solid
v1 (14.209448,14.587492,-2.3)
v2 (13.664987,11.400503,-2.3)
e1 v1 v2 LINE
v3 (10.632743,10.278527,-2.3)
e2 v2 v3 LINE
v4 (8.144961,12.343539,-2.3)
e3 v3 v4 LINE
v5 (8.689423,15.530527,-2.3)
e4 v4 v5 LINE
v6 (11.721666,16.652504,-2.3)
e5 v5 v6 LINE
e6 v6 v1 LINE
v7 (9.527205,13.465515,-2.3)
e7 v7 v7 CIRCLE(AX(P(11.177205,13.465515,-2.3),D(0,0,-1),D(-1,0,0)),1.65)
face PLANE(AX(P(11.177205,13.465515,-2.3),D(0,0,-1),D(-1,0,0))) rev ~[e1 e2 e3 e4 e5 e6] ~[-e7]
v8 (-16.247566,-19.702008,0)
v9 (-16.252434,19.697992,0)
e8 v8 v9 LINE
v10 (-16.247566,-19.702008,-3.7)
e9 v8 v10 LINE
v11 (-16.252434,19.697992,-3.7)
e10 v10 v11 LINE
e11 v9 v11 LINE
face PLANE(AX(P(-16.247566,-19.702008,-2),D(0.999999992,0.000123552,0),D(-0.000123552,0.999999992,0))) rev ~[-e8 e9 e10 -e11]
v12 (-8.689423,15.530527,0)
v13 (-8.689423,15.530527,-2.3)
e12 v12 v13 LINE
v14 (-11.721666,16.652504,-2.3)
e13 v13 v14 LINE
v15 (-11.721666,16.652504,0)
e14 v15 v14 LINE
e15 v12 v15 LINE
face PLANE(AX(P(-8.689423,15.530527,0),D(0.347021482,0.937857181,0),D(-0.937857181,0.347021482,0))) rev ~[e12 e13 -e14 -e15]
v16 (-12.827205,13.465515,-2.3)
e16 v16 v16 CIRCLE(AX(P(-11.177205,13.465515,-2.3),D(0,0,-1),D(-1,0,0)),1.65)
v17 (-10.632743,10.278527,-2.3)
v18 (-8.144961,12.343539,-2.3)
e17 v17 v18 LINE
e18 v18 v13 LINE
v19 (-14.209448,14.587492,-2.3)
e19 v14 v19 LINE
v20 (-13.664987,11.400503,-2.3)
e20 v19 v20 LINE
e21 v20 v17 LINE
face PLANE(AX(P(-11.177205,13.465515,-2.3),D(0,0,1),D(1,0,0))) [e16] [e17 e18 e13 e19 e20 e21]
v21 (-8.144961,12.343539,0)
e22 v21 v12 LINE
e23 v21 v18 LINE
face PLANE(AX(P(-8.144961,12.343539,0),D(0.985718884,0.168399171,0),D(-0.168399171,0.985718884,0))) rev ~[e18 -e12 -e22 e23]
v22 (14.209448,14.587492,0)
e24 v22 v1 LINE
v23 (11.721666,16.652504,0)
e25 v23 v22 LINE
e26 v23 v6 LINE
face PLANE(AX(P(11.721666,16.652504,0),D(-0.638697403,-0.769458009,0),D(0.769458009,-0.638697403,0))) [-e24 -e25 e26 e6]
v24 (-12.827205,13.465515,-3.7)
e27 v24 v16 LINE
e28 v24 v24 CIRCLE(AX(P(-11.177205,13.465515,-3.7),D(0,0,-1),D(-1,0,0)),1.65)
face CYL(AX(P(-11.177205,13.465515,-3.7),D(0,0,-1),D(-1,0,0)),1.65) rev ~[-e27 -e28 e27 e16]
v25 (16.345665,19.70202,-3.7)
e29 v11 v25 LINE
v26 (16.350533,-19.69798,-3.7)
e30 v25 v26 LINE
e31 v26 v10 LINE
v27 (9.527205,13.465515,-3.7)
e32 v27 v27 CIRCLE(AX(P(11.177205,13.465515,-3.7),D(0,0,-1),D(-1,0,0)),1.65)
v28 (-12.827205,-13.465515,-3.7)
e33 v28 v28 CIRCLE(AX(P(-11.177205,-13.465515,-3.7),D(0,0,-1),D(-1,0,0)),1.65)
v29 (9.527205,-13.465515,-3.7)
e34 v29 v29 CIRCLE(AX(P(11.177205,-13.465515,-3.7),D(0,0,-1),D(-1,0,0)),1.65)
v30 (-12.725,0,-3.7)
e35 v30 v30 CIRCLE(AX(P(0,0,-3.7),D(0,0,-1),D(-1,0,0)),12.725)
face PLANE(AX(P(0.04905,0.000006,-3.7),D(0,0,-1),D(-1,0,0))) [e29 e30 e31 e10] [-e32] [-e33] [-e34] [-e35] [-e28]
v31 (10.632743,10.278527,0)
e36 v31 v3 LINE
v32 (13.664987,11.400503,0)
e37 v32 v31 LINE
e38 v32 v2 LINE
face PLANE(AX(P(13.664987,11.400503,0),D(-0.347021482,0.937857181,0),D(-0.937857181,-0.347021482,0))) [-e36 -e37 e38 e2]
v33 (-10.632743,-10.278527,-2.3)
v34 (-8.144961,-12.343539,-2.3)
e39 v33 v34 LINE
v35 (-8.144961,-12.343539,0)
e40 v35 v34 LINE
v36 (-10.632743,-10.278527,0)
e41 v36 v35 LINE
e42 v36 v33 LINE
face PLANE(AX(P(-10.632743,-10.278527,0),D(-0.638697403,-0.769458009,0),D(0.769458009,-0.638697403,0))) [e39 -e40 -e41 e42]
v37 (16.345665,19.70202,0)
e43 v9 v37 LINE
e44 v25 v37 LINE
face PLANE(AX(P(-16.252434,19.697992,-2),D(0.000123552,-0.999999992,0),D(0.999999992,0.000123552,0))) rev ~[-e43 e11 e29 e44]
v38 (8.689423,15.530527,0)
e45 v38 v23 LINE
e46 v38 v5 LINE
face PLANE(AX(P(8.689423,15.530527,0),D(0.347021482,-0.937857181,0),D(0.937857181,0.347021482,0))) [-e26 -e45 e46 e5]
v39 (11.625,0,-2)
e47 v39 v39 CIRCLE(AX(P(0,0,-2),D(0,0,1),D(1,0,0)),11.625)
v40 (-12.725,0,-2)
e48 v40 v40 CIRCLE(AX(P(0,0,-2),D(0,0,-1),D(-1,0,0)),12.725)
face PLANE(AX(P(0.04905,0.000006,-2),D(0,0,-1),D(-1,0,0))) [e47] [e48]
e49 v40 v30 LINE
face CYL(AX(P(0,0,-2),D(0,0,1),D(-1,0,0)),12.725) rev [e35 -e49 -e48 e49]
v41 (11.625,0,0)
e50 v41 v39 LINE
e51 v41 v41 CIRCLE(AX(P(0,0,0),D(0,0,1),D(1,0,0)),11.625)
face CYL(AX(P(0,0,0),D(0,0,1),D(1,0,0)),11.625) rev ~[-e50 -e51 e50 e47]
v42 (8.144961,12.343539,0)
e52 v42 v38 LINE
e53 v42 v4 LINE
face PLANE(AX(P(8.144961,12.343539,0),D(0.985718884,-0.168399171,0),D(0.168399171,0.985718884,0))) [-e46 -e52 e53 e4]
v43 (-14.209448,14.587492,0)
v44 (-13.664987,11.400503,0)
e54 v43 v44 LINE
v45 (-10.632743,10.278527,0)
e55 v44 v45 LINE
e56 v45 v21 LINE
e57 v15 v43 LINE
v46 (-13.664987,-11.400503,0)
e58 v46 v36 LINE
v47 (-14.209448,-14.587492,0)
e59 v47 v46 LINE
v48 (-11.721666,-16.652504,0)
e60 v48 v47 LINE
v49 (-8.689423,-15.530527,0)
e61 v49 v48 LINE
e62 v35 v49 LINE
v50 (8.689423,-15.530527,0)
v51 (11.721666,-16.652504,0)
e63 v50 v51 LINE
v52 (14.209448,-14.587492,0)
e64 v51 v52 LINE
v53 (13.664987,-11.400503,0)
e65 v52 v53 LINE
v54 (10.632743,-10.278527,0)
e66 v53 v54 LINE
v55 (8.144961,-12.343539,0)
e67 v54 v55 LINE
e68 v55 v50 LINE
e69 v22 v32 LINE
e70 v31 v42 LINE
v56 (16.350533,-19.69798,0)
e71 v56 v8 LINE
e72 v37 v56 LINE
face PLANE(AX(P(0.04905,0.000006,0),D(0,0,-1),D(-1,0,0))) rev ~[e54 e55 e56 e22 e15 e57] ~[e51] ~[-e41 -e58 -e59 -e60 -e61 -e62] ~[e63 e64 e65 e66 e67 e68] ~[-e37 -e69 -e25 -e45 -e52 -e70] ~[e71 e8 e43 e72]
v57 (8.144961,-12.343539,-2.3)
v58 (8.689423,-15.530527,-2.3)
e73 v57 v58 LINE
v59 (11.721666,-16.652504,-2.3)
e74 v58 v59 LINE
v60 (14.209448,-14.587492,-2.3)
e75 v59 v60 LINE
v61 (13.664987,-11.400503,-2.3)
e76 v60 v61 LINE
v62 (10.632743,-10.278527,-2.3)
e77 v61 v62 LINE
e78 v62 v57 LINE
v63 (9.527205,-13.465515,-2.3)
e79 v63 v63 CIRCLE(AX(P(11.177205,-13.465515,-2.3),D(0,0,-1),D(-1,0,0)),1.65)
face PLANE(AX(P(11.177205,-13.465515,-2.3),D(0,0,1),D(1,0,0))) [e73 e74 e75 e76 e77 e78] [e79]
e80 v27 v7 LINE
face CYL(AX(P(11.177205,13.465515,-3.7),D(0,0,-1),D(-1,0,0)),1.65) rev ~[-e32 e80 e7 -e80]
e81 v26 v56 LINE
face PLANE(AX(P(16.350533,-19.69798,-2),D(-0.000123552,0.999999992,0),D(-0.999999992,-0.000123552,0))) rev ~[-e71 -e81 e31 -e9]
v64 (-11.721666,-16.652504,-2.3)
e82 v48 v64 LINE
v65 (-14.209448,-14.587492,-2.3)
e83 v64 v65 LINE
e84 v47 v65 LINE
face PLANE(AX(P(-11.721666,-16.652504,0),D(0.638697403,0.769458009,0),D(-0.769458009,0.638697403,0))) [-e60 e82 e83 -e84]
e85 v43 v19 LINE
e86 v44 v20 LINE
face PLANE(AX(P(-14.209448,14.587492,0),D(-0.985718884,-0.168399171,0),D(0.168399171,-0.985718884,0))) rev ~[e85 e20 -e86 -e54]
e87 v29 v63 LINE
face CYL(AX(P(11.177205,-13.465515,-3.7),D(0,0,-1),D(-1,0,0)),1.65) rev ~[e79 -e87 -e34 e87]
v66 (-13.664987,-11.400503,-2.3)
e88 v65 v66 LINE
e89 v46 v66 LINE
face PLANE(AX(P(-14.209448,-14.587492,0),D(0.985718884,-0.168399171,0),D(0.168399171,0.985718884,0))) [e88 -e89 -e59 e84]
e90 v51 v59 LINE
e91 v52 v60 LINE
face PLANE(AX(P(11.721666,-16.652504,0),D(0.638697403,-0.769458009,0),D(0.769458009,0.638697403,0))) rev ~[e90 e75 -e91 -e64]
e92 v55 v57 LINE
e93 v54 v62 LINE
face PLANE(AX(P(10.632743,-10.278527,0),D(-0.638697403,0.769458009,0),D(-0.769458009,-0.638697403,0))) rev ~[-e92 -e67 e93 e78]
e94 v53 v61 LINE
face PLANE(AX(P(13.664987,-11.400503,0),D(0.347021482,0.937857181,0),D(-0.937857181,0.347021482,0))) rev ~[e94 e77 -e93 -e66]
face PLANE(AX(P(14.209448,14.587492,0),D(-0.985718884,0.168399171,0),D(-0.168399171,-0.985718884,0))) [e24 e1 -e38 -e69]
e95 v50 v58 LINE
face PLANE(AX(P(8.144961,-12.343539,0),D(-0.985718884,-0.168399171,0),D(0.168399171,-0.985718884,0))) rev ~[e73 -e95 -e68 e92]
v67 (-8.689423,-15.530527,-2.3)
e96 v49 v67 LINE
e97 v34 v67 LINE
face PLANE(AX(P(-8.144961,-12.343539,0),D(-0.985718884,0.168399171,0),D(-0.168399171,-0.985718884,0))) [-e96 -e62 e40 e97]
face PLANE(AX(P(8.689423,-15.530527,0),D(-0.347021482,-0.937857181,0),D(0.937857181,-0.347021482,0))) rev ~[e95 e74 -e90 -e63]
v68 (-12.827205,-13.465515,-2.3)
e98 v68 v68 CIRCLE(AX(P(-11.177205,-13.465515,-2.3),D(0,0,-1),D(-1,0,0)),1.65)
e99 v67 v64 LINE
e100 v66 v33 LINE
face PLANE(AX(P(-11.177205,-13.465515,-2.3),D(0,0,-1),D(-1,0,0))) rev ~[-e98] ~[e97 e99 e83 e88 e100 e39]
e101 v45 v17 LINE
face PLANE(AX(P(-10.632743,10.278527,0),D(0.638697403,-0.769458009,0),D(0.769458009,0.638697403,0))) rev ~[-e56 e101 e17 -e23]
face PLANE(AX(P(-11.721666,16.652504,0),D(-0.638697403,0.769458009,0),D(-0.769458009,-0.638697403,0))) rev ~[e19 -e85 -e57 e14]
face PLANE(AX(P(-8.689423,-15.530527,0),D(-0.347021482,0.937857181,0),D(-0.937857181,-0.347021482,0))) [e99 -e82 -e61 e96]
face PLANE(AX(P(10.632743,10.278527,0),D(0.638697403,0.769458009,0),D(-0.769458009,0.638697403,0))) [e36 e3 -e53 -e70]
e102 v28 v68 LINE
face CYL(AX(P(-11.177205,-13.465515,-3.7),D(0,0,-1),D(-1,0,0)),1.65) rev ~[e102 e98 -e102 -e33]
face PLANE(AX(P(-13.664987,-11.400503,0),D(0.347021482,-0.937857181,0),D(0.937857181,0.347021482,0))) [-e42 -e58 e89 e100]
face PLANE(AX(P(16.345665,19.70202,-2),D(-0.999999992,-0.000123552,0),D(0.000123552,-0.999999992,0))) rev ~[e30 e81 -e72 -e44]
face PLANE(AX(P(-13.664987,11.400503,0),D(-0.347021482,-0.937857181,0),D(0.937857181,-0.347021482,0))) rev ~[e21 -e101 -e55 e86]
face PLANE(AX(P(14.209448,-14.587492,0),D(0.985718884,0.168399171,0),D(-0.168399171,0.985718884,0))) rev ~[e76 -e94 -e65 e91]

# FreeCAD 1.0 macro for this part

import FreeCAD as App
import Part
import Sketcher
Q = App.Units.Quantity

doc = App.newDocument("Part")
params = doc.addObject("Spreadsheet::Sheet", "Params")
for row, (alias, value) in enumerate([
    ("sketch1_diameter", "23.25 mm"),
    ("sketch1_length", "39.400001 mm"),
    ("pad1_length", "2 mm"),
    ("sketch2_diameter", "25.45 mm"),
    ("sketch2_length", "39.400001 mm"),
    ("pad2_length", "1.7 mm"),
    ("pocket1_length", "2.3 mm"),
    ("sketch4_diameter", "3.3 mm"),
    ("pocket2_length", "1.4 mm"),
], start=1):
    params.set(f"A{row}", alias)
    params.set(f"B{row}", "=" + value)
    params.setAlias(f"B{row}", alias)

body = doc.addObject("PartDesign::Body", "Body")

# Sketch on XY plane
sketch1 = body.newObject("Sketcher::SketchObject", "Sketch")
sketch1.AttachmentSupport = (doc.getObject("XY_Plane"), [""])
sketch1.MapMode = "FlatFace"
sketch1.addGeometry([
    Part.LineSegment(App.Vector(-16, 20, 0), App.Vector(-16, -20, 0)),  # 0
    Part.LineSegment(App.Vector(-16, -20, 0), App.Vector(16, -20, 0)),  # 1
    Part.LineSegment(App.Vector(16, -20, 0), App.Vector(16, 20, 0)),  # 2
    Part.LineSegment(App.Vector(16, 20, 0), App.Vector(-16, 20, 0)),  # 3
    Part.Circle(App.Vector(0, 0, 0), App.Vector(0, 0, 1), 12),  # 4
], False)
sketch1.addConstraint([
    Sketcher.Constraint("Coincident", 0, 2, 1, 1),
    Sketcher.Constraint("Coincident", 1, 2, 2, 1),
    Sketcher.Constraint("Coincident", 2, 2, 3, 1),
    Sketcher.Constraint("Coincident", 3, 2, 0, 1),
    Sketcher.Constraint("Coincident", 4, 3, -1, 1),
    Sketcher.Constraint("Perpendicular", 0, 1),
    Sketcher.Constraint("Perpendicular", 1, 2),
    Sketcher.Constraint("Perpendicular", 2, 3),
    Sketcher.Constraint("Diameter", 4, Q("23.25 mm")),
    Sketcher.Constraint("Distance", 0, Q("39.400001 mm")),
    Sketcher.Constraint("Distance", 1, Q("32.5981 mm")),
    Sketcher.Constraint("DistanceY", 1, 2, -1, 1, Q("19.69798 mm")),
    Sketcher.Constraint("DistanceX", 0, 2, 2, 2, Q("32.593232 mm")),
    Sketcher.Constraint("DistanceX", 0, 2, -1, 1, Q("16.247566 mm")),
])
sketch1.setExpression("Constraints[8]", "Params.sketch1_diameter")
sketch1.setExpression("Constraints[9]", "Params.sketch1_length")
pad1 = body.newObject("PartDesign::Pad", "Pad")
pad1.Profile = sketch1
pad1.setExpression("Length", "Params.pad1_length")
pad1.Reversed = True

# Sketch on XY plane
sketch2 = body.newObject("Sketcher::SketchObject", "Sketch001")
sketch2.AttachmentSupport = (doc.getObject("XY_Plane"), [""])
sketch2.MapMode = "FlatFace"
sketch2.AttachmentOffset = App.Placement(App.Vector(0, 0, -2), App.Rotation())
sketch2.addGeometry([
    Part.LineSegment(App.Vector(16, -20, 0), App.Vector(-16, -20, 0)),  # 0
    Part.LineSegment(App.Vector(-16, -20, 0), App.Vector(-16, 20, 0)),  # 1
    Part.LineSegment(App.Vector(-16, 20, 0), App.Vector(16, 20, 0)),  # 2
    Part.LineSegment(App.Vector(16, 20, 0), App.Vector(16, -20, 0)),  # 3
    Part.Circle(App.Vector(0, 0, 0), App.Vector(0, 0, 1), 13),  # 4
], False)
sketch2.addConstraint([
    Sketcher.Constraint("Coincident", 0, 2, 1, 1),
    Sketcher.Constraint("Coincident", 1, 2, 2, 1),
    Sketcher.Constraint("Coincident", 2, 2, 3, 1),
    Sketcher.Constraint("Coincident", 3, 2, 0, 1),
    Sketcher.Constraint("Coincident", 4, 3, -1, 1),
    Sketcher.Constraint("Perpendicular", 0, 1),
    Sketcher.Constraint("Perpendicular", 1, 2),
    Sketcher.Constraint("Perpendicular", 2, 3),
    Sketcher.Constraint("Diameter", 4, Q("25.45 mm")),
    Sketcher.Constraint("Distance", 1, Q("39.400001 mm")),
    Sketcher.Constraint("Distance", 0, Q("32.5981 mm")),
    Sketcher.Constraint("DistanceY", -1, 1, 2, 2, Q("19.70202 mm")),
    Sketcher.Constraint("DistanceX", 0, 2, 2, 2, Q("32.593232 mm")),
    Sketcher.Constraint("DistanceX", 0, 2, -1, 1, Q("16.247566 mm")),
])
sketch2.setExpression("Constraints[8]", "Params.sketch2_diameter")
sketch2.setExpression("Constraints[9]", "Params.sketch2_length")
pad2 = body.newObject("PartDesign::Pad", "Pad001")
pad2.Profile = sketch2
pad2.setExpression("Length", "Params.pad2_length")
pad2.Reversed = True

# Sketch on XY plane
sketch3 = body.newObject("Sketcher::SketchObject", "Sketch002")
sketch3.AttachmentSupport = (doc.getObject("XY_Plane"), [""])
sketch3.MapMode = "FlatFace"
sketch3.addGeometry([
    Part.LineSegment(App.Vector(10.6, -10.3, 0), App.Vector(8.1, -12.3, 0)),  # 0
    Part.LineSegment(App.Vector(8.1, -12.3, 0), App.Vector(8.7, -15.5, 0)),  # 1
    Part.LineSegment(App.Vector(8.7, -15.5, 0), App.Vector(11.7, -16.7, 0)),  # 2
    Part.LineSegment(App.Vector(11.7, -16.7, 0), App.Vector(14.2, -14.6, 0)),  # 3
    Part.LineSegment(App.Vector(14.2, -14.6, 0), App.Vector(13.7, -11.4, 0)),  # 4
    Part.LineSegment(App.Vector(13.7, -11.4, 0), App.Vector(10.6, -10.3, 0)),  # 5
    Part.LineSegment(App.Vector(10.6, 10.3, 0), App.Vector(13.7, 11.4, 0)),  # 6
    Part.LineSegment(App.Vector(13.7, 11.4, 0), App.Vector(14.2, 14.6, 0)),  # 7
    Part.LineSegment(App.Vector(14.2, 14.6, 0), App.Vector(11.7, 16.7, 0)),  # 8
    Part.LineSegment(App.Vector(11.7, 16.7, 0), App.Vector(8.7, 15.5, 0)),  # 9
    Part.LineSegment(App.Vector(8.7, 15.5, 0), App.Vector(8.1, 12.3, 0)),  # 10
    Part.LineSegment(App.Vector(8.1, 12.3, 0), App.Vector(10.6, 10.3, 0)),  # 11
    Part.LineSegment(App.Vector(-13.7, 11.4, 0), App.Vector(-10.6, 10.3, 0)),  # 12
    Part.LineSegment(App.Vector(-10.6, 10.3, 0), App.Vector(-8.1, 12.3, 0)),  # 13
    Part.LineSegment(App.Vector(-8.1, 12.3, 0), App.Vector(-8.7, 15.5, 0)),  # 14
    Part.LineSegment(App.Vector(-8.7, 15.5, 0), App.Vector(-11.7, 16.7, 0)),  # 15
    Part.LineSegment(App.Vector(-11.7, 16.7, 0), App.Vector(-14.2, 14.6, 0)),  # 16
    Part.LineSegment(App.Vector(-14.2, 14.6, 0), App.Vector(-13.7, 11.4, 0)),  # 17
    Part.LineSegment(App.Vector(-10.6, -10.3, 0), App.Vector(-13.7, -11.4, 0)),  # 18
    Part.LineSegment(App.Vector(-13.7, -11.4, 0), App.Vector(-14.2, -14.6, 0)),  # 19
    Part.LineSegment(App.Vector(-14.2, -14.6, 0), App.Vector(-11.7, -16.7, 0)),  # 20
    Part.LineSegment(App.Vector(-11.7, -16.7, 0), App.Vector(-8.7, -15.5, 0)),  # 21
    Part.LineSegment(App.Vector(-8.7, -15.5, 0), App.Vector(-8.1, -12.3, 0)),  # 22
    Part.LineSegment(App.Vector(-8.1, -12.3, 0), App.Vector(-10.6, -10.3, 0)),  # 23
], False)
sketch3.addConstraint([
    Sketcher.Constraint("Coincident", 0, 2, 1, 1),
    Sketcher.Constraint("Coincident", 1, 2, 2, 1),
    Sketcher.Constraint("Coincident", 2, 2, 3, 1),
    Sketcher.Constraint("Coincident", 3, 2, 4, 1),
    Sketcher.Constraint("Coincident", 4, 2, 5, 1),
    Sketcher.Constraint("Coincident", 5, 2, 0, 1),
    Sketcher.Constraint("Coincident", 6, 2, 7, 1),
    Sketcher.Constraint("Coincident", 7, 2, 8, 1),
    Sketcher.Constraint("Coincident", 8, 2, 9, 1),
    Sketcher.Constraint("Coincident", 9, 2, 10, 1),
    Sketcher.Constraint("Coincident", 10, 2, 11, 1),
    Sketcher.Constraint("Coincident", 11, 2, 6, 1),
    Sketcher.Constraint("Coincident", 12, 2, 13, 1),
    Sketcher.Constraint("Coincident", 13, 2, 14, 1),
    Sketcher.Constraint("Coincident", 14, 2, 15, 1),
    Sketcher.Constraint("Coincident", 15, 2, 16, 1),
    Sketcher.Constraint("Coincident", 16, 2, 17, 1),
    Sketcher.Constraint("Coincident", 17, 2, 12, 1),
    Sketcher.Constraint("Coincident", 18, 2, 19, 1),
    Sketcher.Constraint("Coincident", 19, 2, 20, 1),
    Sketcher.Constraint("Coincident", 20, 2, 21, 1),
    Sketcher.Constraint("Coincident", 21, 2, 22, 1),
    Sketcher.Constraint("Coincident", 22, 2, 23, 1),
    Sketcher.Constraint("Coincident", 23, 2, 18, 1),
    Sketcher.Constraint("Symmetric", 5, 2, 12, 2, -1, 1),
    Sketcher.Constraint("Symmetric", 0, 2, 13, 2, -1, 1),
    Sketcher.Constraint("Symmetric", 1, 2, 14, 2, -1, 1),
    Sketcher.Constraint("Symmetric", 2, 2, 15, 2, -1, 1),
    Sketcher.Constraint("Symmetric", 3, 2, 16, 2, -1, 1),
    Sketcher.Constraint("Symmetric", 4, 2, 17, 2, -1, 1),
    Sketcher.Constraint("Symmetric", 6, 2, 18, 2, -1, 1),
    Sketcher.Constraint("Symmetric", 7, 2, 19, 2, -1, 1),
    Sketcher.Constraint("Symmetric", 8, 2, 20, 2, -1, 1),
    Sketcher.Constraint("Symmetric", 9, 2, 21, 2, -1, 1),
    Sketcher.Constraint("Symmetric", 10, 2, 22, 2, -1, 1),
    Sketcher.Constraint("Symmetric", 11, 2, 23, 2, -1, 1),
    Sketcher.Constraint("Symmetric", 11, 2, 12, 2, -2),
    Sketcher.Constraint("Symmetric", 10, 2, 13, 2, -2),
    Sketcher.Constraint("Symmetric", 9, 2, 14, 2, -2),
    Sketcher.Constraint("Symmetric", 8, 2, 15, 2, -2),
    Sketcher.Constraint("Symmetric", 7, 2, 16, 2, -2),
    Sketcher.Constraint("Symmetric", 6, 2, 17, 2, -2),
    Sketcher.Constraint("Parallel", 0, 3),
    Sketcher.Constraint("Parallel", 1, 4),
    Sketcher.Constraint("Parallel", 2, 5),
    Sketcher.Constraint("Equal", 0, 1),
    Sketcher.Constraint("Equal", 1, 2),
    Sketcher.Constraint("Equal", 2, 3),
    Sketcher.Constraint("DistanceY", 2, 2, 4, 2, Q("5.252 mm")),
    Sketcher.Constraint("Distance", 0, Q("3.233162 mm")),
    Sketcher.Constraint("DistanceX", -1, 1, 0, 2, Q("8.144961 mm")),
    Sketcher.Constraint("DistanceY", 0, 2, -1, 1, Q("12.343539 mm")),
    Sketcher.Constraint("DistanceX", -1, 1, 3, 2, Q("14.209448 mm")),
    Sketcher.Constraint("DistanceY", 3, 2, -1, 1, Q("14.587492 mm")),
])
pocket1 = body.newObject("PartDesign::Pocket", "Pocket")
pocket1.Profile = sketch3
pocket1.setExpression("Length", "Params.pocket1_length")

# Sketch on XY plane
sketch4 = body.newObject("Sketcher::SketchObject", "Sketch003")
sketch4.AttachmentSupport = (doc.getObject("XY_Plane"), [""])
sketch4.MapMode = "FlatFace"
sketch4.AttachmentOffset = App.Placement(App.Vector(0, 0, -3.7), App.Rotation())
sketch4.addGeometry([
    Part.Circle(App.Vector(11.2, -13.5, 0), App.Vector(0, 0, 1), 1.6),
    Part.Circle(App.Vector(11.2, 13.5, 0), App.Vector(0, 0, 1), 1.6),
    Part.Circle(App.Vector(-11.2, 13.5, 0), App.Vector(0, 0, 1), 1.6),
    Part.Circle(App.Vector(-11.2, -13.5, 0), App.Vector(0, 0, 1), 1.6),
], False)
sketch4.addConstraint([
    Sketcher.Constraint("Equal", 0, 1),
    Sketcher.Constraint("Equal", 1, 2),
    Sketcher.Constraint("Equal", 2, 3),
    Sketcher.Constraint("Symmetric", 0, 3, 2, 3, -1, 1),
    Sketcher.Constraint("Symmetric", 1, 3, 3, 3, -1, 1),
    Sketcher.Constraint("Symmetric", 1, 3, 2, 3, -2),
    Sketcher.Constraint("Diameter", 0, Q("3.3 mm")),
    Sketcher.Constraint("DistanceY", 0, 3, 1, 3, Q("26.93103 mm")),
    Sketcher.Constraint("DistanceX", 2, 3, 1, 3, Q("22.354409 mm")),
])
sketch4.setExpression("Constraints[6]", "Params.sketch4_diameter")
pocket2 = body.newObject("PartDesign::Pocket", "Pocket001")
pocket2.Profile = sketch4
pocket2.setExpression("Length", "Params.pocket2_length")
pocket2.Reversed = True

doc.recompute()
